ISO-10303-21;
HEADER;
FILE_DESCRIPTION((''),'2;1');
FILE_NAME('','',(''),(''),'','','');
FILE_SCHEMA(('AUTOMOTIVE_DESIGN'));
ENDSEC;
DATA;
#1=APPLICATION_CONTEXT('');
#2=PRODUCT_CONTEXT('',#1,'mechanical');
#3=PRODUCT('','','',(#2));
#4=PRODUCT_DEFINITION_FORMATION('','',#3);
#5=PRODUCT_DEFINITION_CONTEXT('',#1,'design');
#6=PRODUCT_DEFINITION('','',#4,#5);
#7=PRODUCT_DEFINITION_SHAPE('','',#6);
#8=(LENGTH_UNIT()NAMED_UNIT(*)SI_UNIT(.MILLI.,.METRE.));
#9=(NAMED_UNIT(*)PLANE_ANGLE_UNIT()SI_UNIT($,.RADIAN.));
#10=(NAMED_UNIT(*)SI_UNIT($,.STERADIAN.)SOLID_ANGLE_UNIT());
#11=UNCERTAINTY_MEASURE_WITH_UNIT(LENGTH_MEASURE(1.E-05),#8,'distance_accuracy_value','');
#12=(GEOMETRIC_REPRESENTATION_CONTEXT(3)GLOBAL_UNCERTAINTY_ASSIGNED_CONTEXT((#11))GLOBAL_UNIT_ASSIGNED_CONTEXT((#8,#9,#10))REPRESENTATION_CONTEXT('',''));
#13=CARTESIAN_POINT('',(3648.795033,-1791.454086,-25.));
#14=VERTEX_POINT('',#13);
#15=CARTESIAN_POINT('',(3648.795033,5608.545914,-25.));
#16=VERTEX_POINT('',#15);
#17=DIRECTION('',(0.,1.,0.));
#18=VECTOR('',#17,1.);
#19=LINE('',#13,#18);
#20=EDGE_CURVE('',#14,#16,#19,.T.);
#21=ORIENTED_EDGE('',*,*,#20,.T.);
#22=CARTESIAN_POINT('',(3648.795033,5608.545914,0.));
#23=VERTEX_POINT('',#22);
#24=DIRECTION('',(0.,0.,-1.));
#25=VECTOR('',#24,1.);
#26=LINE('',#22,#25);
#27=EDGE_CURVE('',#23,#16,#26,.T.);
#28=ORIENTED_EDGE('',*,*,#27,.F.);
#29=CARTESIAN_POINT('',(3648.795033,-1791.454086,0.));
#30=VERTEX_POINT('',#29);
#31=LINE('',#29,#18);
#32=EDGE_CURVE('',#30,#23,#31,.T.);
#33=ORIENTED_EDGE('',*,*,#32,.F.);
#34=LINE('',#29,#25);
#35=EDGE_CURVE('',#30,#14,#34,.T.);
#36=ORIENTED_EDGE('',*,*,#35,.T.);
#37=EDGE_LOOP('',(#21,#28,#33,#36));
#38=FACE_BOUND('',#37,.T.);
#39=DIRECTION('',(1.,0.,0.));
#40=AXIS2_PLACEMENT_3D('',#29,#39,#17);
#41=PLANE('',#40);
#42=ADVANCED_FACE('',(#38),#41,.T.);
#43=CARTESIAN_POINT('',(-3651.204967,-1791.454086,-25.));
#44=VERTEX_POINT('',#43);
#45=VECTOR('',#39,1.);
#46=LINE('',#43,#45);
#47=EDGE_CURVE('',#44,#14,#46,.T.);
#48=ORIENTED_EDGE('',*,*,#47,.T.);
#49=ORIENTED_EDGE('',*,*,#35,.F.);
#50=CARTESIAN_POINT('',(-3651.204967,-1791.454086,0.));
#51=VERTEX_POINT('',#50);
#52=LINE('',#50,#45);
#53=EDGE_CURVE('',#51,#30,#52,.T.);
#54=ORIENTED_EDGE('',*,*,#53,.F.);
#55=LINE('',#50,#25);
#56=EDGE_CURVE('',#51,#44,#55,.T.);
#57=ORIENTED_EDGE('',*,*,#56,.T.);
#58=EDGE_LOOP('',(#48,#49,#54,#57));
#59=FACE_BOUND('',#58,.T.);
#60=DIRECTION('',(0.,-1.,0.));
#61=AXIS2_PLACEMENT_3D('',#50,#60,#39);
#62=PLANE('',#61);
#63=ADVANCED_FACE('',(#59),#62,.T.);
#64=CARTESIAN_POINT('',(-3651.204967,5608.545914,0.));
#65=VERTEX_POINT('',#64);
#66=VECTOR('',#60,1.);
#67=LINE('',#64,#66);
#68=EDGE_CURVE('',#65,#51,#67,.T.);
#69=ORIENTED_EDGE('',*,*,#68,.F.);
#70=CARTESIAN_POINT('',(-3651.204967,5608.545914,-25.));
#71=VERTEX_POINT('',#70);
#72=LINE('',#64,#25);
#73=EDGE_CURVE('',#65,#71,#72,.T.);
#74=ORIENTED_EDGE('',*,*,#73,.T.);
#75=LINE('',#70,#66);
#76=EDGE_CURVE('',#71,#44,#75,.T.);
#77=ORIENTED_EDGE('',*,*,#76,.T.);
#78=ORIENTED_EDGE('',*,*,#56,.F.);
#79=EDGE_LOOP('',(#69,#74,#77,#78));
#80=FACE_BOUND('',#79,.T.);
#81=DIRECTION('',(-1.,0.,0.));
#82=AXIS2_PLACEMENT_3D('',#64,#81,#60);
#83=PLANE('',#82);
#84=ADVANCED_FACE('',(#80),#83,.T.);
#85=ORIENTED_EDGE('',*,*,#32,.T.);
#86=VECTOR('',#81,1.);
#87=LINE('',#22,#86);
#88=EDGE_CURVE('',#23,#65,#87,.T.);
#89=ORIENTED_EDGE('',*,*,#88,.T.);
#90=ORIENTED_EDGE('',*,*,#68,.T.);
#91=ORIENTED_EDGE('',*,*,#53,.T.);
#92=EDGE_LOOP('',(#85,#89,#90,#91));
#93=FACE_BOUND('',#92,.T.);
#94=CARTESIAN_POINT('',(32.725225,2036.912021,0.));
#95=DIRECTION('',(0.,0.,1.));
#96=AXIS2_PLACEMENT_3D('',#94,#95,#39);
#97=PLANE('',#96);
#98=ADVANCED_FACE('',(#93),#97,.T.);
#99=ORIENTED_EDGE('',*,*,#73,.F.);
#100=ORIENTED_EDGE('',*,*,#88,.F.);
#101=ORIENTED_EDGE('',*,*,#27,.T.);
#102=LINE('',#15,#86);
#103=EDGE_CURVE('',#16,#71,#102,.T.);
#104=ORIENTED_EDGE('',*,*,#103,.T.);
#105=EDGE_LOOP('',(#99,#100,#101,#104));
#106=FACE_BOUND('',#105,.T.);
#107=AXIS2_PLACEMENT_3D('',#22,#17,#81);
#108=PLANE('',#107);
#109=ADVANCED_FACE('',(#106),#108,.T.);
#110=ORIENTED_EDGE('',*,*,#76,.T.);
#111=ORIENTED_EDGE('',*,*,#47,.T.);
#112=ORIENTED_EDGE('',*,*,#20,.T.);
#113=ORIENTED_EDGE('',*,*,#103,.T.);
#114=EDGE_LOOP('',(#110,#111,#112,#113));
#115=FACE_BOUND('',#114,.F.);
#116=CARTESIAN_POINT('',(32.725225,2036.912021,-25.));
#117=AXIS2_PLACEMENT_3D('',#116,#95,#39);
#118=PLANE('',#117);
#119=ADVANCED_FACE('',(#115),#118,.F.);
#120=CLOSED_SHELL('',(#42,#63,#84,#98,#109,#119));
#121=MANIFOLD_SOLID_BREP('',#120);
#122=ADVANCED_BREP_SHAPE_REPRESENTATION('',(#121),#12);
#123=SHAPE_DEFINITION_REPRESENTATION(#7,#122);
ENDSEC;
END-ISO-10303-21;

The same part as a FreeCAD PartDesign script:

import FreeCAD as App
import Part
import Sketcher
from FreeCAD import Vector
Q = App.Units.Quantity

doc = App.newDocument("Part")
body = doc.addObject("PartDesign::Body", "Body")

# Sketch on XY plane
sketch1 = body.newObject("Sketcher::SketchObject", "Sketch")
sketch1.AttachmentSupport = (doc.getObject("XY_Plane"), [""])
sketch1.MapMode = "FlatFace"
sketch1.addGeometry([
    Part.LineSegment(Vector(-3651, 5609, 0), Vector(-3651, -1791, 0)),
    Part.LineSegment(Vector(-3651, -1791, 0), Vector(3649, -1791, 0)),
    Part.LineSegment(Vector(3649, -1791, 0), Vector(3649, 5609, 0)),
    Part.LineSegment(Vector(3649, 5609, 0), Vector(-3651, 5609, 0)),
], False)
sketch1.addConstraint([
    Sketcher.Constraint("Coincident", 0, 2, 1, 1),
    Sketcher.Constraint("Coincident", 1, 2, 2, 1),
    Sketcher.Constraint("Coincident", 2, 2, 3, 1),
    Sketcher.Constraint("Coincident", 3, 2, 0, 1),
    Sketcher.Constraint("Vertical", 0),
    Sketcher.Constraint("Horizontal", 1),
    Sketcher.Constraint("Vertical", 2),
    Sketcher.Constraint("Horizontal", 3),
    Sketcher.Constraint("DistanceX", 1, 1, 1, 2, Q("7300 mm")),
    Sketcher.Constraint("DistanceY", 0, 2, 0, 1, Q("7400 mm")),
    Sketcher.Constraint("DistanceX", 0, 2, -1, 1, Q("3651.204967 mm")),
    Sketcher.Constraint("DistanceY", 0, 2, -1, 1, Q("1791.454086 mm")),
])
pad1 = body.newObject("PartDesign::Pad", "Pad")
pad1.Profile = sketch1
pad1.Length = 25
pad1.Reversed = True

doc.recompute()
